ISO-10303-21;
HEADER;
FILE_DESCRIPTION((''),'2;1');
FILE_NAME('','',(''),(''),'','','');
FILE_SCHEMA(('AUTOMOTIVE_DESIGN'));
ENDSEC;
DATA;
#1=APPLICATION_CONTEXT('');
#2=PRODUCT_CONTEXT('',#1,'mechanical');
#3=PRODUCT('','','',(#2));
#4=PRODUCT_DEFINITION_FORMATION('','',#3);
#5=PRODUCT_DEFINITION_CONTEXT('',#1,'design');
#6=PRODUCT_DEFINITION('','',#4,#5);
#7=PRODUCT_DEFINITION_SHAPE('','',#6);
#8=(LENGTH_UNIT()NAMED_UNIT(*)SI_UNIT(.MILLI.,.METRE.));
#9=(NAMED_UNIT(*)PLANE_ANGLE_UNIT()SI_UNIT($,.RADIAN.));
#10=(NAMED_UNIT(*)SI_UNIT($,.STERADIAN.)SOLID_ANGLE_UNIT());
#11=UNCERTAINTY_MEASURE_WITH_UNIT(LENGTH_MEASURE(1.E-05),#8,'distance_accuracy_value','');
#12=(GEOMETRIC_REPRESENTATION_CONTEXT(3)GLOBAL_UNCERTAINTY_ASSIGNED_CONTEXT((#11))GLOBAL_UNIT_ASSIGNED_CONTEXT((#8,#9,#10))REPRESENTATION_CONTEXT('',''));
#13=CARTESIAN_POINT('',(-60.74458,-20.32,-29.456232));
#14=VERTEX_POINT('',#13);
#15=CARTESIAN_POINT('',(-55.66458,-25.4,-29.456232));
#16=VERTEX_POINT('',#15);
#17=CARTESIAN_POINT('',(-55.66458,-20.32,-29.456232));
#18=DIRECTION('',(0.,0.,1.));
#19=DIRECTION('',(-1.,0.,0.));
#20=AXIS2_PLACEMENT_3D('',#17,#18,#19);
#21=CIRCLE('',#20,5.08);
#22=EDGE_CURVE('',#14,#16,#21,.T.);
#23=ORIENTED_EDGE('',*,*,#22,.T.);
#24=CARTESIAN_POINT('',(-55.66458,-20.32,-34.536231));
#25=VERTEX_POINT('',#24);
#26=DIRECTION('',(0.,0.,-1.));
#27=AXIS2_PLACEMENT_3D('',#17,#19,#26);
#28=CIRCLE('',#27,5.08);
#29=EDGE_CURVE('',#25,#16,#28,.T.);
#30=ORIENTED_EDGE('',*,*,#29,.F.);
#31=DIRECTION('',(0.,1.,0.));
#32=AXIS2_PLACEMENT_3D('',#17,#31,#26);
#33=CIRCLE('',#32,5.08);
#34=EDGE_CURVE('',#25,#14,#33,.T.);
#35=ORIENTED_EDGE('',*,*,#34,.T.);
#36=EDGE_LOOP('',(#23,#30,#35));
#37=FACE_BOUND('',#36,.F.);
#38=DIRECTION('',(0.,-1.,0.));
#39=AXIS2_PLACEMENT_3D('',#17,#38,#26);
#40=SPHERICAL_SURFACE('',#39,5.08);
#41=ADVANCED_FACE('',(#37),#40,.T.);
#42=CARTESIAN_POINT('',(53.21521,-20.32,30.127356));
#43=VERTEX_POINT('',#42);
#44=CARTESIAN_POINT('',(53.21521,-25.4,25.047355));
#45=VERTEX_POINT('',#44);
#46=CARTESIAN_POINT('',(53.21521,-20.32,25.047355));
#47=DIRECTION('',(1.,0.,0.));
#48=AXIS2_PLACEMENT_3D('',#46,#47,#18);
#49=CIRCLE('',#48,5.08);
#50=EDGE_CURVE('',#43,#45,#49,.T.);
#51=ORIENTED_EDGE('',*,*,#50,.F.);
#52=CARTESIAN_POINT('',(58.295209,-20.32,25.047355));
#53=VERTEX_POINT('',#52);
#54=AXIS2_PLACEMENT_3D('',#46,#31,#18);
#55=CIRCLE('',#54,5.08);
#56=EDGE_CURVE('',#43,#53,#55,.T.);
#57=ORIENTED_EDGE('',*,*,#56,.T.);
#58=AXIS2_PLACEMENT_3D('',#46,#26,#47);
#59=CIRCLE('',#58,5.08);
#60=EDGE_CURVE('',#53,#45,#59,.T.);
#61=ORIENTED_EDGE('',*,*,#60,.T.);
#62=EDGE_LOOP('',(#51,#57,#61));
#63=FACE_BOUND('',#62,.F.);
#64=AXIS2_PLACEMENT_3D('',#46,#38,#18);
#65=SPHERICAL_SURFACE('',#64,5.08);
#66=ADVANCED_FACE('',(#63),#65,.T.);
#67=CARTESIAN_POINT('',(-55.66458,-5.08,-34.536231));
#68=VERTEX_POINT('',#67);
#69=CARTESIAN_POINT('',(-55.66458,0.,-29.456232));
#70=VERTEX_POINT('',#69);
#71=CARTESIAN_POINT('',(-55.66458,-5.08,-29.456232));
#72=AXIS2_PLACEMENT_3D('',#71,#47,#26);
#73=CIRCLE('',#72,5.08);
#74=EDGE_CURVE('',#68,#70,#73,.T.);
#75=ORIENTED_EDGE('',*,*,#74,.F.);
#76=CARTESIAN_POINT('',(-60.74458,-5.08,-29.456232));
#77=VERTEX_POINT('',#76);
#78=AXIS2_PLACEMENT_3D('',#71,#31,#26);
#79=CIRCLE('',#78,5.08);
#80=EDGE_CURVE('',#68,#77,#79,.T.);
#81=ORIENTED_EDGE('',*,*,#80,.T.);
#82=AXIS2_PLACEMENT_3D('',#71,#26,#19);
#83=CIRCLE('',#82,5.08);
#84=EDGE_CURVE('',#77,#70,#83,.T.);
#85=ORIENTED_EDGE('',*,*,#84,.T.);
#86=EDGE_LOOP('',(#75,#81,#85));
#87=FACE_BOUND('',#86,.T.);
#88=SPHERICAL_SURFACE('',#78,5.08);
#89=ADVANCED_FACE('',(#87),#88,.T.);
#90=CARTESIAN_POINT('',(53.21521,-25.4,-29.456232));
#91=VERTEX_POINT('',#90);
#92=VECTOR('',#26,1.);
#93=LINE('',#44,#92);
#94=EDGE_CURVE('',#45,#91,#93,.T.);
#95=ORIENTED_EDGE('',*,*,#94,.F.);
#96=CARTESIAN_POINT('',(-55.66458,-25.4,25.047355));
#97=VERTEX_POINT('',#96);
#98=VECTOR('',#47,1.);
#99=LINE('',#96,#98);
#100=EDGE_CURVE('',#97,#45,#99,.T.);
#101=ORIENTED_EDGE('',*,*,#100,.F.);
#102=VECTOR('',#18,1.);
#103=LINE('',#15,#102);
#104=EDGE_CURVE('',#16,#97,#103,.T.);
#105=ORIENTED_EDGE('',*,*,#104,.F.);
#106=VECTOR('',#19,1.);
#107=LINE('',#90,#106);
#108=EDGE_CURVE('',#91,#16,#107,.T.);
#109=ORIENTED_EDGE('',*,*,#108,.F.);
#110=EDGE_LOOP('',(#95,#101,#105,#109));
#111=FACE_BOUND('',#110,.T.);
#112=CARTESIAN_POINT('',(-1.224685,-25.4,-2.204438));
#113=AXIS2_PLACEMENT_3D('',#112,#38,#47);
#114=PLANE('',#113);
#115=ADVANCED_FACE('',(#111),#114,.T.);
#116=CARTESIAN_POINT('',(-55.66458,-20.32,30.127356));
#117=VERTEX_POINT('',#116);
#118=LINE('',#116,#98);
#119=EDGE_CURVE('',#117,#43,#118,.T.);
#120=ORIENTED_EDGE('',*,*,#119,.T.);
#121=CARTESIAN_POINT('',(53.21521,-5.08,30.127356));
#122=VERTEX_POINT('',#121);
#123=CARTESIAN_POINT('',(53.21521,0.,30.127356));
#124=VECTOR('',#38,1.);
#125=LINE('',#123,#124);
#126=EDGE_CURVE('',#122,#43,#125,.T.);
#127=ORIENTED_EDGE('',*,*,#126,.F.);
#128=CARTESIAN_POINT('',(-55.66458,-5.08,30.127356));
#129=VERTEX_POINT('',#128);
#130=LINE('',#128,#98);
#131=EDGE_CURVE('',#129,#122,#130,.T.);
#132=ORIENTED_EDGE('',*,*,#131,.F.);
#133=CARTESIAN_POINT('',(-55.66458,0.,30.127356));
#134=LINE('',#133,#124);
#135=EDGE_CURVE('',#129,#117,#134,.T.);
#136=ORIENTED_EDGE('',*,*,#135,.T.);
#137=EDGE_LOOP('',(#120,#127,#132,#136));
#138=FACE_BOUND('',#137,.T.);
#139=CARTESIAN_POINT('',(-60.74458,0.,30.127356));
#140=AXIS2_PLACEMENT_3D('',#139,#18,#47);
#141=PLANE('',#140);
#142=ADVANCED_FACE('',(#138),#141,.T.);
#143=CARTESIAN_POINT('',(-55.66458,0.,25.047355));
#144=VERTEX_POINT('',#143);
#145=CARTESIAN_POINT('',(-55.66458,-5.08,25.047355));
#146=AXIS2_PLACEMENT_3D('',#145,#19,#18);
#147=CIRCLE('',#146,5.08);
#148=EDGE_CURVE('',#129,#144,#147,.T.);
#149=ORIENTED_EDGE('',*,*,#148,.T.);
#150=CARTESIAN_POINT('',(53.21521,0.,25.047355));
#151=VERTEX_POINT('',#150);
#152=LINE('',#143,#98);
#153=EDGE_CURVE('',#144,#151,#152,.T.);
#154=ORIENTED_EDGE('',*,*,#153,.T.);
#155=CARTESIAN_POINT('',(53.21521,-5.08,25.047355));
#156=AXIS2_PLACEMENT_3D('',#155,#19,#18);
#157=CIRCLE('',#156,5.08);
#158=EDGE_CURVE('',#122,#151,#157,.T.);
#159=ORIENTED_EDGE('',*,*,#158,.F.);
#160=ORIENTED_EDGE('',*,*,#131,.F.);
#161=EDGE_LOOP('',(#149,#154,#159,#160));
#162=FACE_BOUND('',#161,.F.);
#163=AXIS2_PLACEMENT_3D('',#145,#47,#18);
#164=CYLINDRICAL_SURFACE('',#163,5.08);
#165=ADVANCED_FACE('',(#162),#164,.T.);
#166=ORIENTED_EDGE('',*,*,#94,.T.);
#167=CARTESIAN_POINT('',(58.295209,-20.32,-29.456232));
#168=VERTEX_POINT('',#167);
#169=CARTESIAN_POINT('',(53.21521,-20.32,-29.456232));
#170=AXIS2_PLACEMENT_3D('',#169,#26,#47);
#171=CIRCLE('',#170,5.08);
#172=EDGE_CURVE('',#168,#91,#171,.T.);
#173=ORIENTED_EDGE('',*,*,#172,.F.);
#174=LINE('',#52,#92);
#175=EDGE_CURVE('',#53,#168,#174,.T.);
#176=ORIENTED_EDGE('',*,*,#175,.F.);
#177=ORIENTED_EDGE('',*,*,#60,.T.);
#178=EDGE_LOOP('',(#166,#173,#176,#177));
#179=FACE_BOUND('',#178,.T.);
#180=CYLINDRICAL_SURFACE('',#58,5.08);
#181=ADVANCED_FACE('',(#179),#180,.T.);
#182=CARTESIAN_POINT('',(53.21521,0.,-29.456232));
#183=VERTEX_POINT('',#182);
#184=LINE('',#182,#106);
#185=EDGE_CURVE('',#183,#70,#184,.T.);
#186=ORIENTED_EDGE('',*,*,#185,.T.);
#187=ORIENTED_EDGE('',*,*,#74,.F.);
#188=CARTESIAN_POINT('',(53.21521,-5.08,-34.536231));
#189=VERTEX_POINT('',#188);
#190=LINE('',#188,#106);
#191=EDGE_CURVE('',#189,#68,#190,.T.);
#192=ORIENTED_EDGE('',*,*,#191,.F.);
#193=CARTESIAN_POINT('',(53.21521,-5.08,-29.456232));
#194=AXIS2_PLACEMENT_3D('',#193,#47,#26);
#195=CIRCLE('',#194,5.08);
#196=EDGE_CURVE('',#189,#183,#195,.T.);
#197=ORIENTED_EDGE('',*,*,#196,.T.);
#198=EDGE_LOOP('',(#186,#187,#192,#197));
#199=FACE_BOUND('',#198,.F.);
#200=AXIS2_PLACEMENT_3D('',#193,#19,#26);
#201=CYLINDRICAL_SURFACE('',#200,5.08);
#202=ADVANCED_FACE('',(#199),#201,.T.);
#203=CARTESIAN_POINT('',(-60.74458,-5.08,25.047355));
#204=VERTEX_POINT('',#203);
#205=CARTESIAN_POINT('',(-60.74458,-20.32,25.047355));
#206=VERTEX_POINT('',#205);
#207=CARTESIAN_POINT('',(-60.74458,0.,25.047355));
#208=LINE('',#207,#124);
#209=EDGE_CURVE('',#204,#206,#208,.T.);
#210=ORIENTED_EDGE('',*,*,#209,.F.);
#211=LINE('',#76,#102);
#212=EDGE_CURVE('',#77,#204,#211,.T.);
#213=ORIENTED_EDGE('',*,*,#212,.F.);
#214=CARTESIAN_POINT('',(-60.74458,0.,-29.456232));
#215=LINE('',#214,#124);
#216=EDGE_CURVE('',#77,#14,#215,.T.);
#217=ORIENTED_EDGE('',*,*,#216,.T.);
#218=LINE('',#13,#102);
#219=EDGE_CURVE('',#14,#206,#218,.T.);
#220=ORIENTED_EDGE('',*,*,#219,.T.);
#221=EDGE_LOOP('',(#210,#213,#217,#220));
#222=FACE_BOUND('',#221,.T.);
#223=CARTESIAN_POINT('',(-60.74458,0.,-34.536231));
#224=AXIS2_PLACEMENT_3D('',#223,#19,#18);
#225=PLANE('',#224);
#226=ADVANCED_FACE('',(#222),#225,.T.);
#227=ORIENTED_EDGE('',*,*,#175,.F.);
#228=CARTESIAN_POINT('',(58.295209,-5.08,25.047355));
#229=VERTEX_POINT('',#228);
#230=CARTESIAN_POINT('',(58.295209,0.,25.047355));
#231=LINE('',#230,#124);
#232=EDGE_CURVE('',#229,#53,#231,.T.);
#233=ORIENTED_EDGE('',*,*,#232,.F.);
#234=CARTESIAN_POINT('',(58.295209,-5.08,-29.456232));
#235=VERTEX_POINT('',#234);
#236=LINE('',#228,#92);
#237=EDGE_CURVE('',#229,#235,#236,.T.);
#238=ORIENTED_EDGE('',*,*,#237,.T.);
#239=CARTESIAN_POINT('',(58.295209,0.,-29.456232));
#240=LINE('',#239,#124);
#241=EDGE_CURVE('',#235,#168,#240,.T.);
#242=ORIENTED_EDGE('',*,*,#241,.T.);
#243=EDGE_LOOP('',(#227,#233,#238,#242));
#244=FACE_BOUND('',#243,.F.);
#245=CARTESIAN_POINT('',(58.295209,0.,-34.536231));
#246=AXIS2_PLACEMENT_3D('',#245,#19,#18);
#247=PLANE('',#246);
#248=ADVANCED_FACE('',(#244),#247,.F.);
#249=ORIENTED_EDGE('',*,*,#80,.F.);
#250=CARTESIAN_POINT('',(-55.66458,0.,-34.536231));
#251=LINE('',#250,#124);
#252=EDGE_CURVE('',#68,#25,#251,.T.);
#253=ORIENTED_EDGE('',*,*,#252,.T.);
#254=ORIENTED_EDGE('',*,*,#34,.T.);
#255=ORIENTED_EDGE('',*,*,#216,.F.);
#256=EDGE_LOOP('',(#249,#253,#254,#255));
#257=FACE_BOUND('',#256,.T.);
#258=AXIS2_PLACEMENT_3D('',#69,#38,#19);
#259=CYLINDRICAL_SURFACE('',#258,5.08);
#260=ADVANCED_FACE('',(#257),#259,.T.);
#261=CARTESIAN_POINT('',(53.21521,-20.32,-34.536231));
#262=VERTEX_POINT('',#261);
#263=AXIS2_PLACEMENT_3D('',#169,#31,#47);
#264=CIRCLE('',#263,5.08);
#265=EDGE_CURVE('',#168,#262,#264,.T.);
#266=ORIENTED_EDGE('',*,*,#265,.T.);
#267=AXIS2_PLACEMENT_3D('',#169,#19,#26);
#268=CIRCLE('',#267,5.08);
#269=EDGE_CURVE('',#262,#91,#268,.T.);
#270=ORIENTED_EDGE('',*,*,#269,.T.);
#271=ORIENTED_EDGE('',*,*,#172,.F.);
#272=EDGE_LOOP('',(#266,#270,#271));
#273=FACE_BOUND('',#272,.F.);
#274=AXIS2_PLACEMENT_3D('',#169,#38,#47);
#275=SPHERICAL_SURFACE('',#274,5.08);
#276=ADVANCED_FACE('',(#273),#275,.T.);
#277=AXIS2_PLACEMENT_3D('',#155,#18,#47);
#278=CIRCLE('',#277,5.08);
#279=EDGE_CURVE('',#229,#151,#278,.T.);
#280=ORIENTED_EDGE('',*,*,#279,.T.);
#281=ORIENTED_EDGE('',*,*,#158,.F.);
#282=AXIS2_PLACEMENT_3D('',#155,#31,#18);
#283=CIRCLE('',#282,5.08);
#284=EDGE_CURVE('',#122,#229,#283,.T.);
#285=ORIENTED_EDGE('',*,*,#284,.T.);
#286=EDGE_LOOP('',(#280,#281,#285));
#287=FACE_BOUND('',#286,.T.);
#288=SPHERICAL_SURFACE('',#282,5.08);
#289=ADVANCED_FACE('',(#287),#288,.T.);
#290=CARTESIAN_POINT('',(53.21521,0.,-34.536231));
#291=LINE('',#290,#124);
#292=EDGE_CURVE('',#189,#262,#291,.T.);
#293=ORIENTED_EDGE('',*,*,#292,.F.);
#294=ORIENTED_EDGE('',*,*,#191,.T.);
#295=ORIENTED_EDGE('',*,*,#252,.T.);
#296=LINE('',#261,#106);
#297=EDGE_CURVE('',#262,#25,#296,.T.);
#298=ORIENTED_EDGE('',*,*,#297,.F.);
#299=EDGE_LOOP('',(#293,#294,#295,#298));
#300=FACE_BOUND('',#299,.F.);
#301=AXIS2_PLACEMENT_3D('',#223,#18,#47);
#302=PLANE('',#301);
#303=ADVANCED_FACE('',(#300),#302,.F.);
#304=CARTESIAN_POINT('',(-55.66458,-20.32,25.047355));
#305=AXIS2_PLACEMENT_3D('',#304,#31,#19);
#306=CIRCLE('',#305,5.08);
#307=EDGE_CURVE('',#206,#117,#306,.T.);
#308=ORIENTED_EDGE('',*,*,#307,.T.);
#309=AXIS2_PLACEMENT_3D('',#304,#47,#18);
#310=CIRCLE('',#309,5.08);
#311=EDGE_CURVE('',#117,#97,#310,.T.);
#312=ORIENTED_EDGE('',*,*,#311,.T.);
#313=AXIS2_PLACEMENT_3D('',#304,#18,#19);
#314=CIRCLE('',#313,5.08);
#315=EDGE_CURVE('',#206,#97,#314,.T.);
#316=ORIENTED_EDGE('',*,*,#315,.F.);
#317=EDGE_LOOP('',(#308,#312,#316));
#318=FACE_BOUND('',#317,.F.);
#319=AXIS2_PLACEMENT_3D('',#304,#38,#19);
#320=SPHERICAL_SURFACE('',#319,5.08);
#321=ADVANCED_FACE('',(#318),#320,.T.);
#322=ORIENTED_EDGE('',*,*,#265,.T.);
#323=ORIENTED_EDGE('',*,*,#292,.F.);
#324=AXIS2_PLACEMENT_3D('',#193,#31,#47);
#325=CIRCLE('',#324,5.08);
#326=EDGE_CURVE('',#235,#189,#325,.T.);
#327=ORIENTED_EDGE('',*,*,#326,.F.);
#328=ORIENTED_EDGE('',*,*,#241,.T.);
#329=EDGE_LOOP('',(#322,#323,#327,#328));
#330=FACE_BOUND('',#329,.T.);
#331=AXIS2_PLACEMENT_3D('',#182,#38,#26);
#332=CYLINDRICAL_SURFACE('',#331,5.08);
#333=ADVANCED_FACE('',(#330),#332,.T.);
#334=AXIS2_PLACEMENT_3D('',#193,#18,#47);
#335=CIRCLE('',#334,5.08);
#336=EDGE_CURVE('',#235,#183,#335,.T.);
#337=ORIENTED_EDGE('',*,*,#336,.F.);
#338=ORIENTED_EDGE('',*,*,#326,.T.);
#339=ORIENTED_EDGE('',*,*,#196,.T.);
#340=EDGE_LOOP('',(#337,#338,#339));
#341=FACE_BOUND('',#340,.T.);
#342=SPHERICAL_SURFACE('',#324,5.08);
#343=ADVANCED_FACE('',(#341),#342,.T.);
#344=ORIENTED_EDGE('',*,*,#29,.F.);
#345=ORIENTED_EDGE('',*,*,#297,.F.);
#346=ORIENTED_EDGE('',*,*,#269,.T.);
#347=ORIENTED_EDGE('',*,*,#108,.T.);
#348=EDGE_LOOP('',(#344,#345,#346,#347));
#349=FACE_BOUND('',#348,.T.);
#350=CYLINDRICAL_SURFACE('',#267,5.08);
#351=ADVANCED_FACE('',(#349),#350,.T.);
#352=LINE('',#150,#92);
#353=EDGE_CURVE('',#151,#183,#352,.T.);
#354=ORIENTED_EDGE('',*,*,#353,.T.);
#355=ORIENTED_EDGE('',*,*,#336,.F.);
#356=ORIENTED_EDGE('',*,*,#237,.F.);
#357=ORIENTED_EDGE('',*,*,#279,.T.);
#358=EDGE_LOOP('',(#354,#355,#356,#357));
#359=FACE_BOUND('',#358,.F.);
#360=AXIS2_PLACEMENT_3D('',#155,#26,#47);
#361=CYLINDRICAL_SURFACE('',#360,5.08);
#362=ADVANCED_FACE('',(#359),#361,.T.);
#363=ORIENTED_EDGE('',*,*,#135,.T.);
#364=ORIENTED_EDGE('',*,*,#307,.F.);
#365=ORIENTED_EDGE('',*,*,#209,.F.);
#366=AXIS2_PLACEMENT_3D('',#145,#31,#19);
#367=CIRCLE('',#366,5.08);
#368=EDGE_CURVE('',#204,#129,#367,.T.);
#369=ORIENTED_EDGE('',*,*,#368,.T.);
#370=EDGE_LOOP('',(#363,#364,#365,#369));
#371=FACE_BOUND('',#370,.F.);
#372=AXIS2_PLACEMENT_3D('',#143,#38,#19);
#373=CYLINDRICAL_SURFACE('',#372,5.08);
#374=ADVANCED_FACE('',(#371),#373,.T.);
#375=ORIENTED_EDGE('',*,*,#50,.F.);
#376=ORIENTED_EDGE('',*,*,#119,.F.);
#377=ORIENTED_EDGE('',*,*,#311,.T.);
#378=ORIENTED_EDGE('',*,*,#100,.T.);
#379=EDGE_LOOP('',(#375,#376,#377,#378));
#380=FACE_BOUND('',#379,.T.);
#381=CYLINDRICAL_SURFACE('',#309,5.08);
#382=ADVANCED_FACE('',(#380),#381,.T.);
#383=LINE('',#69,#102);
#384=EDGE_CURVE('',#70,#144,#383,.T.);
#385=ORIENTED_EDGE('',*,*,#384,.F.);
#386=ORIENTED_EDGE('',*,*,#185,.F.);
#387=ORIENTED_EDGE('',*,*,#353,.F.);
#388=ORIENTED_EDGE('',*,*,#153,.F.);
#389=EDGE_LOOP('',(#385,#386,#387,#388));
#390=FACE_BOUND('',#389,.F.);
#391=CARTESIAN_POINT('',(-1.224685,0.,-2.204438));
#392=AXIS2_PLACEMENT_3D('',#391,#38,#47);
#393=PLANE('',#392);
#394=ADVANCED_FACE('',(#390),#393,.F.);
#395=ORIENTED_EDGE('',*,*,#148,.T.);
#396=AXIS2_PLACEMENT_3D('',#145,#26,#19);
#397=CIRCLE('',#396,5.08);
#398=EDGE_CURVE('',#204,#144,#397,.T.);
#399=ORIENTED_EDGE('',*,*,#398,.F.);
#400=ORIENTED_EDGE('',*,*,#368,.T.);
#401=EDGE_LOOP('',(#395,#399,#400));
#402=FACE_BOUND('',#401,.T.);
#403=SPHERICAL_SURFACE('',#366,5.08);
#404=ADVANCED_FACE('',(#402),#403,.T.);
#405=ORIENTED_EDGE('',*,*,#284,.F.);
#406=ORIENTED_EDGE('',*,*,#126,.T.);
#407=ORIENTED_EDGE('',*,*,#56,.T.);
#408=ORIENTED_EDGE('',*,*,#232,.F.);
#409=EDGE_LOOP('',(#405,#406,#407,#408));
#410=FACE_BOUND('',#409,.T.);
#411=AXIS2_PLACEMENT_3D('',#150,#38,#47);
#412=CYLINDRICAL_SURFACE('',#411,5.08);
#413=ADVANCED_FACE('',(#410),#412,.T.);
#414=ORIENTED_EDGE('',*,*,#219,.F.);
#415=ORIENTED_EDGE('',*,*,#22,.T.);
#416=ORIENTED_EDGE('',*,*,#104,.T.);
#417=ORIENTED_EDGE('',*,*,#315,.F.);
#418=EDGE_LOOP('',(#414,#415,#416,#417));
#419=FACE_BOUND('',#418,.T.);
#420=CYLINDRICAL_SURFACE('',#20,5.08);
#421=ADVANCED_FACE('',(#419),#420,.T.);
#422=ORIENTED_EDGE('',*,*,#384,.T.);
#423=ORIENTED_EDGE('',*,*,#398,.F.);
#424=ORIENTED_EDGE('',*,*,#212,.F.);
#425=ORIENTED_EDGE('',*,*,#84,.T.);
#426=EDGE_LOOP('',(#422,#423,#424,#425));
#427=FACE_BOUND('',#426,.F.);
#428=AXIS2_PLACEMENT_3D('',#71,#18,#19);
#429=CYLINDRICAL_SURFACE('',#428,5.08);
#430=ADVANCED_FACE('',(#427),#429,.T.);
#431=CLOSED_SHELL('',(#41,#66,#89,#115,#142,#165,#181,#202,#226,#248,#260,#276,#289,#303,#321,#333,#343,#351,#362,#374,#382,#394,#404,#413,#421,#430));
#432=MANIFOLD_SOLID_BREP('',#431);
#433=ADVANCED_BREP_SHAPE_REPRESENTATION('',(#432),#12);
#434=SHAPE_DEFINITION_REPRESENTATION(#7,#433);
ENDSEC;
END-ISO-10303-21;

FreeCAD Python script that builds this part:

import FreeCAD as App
import Part
import Sketcher

V = App.Vector
Q = App.Units.Quantity


def edges_at(feature, points):
    """Names of the edges that pass closest to the given points."""
    edges = feature.Shape.Edges
    near = lambda p: min(range(len(edges)), key=lambda i: edges[i].distToShape(Part.Vertex(*p))[0])
    return sorted({f"Edge{near(p) + 1}" for p in points})


def add_polygon(sketch, points):
    """Adds a closed chain of lines whose ends are joined by coincident constraints."""
    first, n = sketch.GeometryCount, len(points)
    for a, b in zip(points, points[1:] + points[:1]):
        sketch.addGeometry(Part.LineSegment(App.Vector(*a, 0), App.Vector(*b, 0)), False)
    for i in range(n):
        sketch.addConstraint(Sketcher.Constraint("Coincident", first + i, 2, first + (i + 1) % n, 1))

doc = App.newDocument("Part")
params = doc.addObject("Spreadsheet::Sheet", "Params")
for row, (alias, value) in enumerate([
    ("pad1_length", "1 in"),
    ("fillet_radius", "0.2 in"),
    ("fillet2_radius", "0.2 in"),
], start=1):
    params.set(f"A{row}", alias)
    params.set(f"B{row}", "=" + value)
    params.setAlias(f"B{row}", alias)

body = doc.addObject("PartDesign::Body", "Body")

sketch1 = body.newObject("Sketcher::SketchObject", "Sketch")
sketch1.AttachmentSupport = (doc.getObject("XZ_Plane"), [""])
sketch1.MapMode = "FlatFace"
add_polygon(sketch1, [(-61, 30), (-61, -35), (58, -35), (58, 30)])
sketch1.addConstraint(Sketcher.Constraint("Vertical", 0))
sketch1.addConstraint(Sketcher.Constraint("Horizontal", 1))
sketch1.addConstraint(Sketcher.Constraint("Vertical", 2))
sketch1.addConstraint(Sketcher.Constraint("Horizontal", 3))
sketch1.addConstraint(Sketcher.Constraint("DistanceX", 1, 1, 1, 2, Q("119.039789 mm")))
sketch1.addConstraint(Sketcher.Constraint("DistanceY", 0, 2, 0, 1, Q("64.663587 mm")))
sketch1.addConstraint(Sketcher.Constraint("DistanceX", 0, 2, -1, 1, Q("60.74458 mm")))
sketch1.addConstraint(Sketcher.Constraint("DistanceY", 0, 2, -1, 1, Q("34.536231 mm")))
pad1 = body.newObject("PartDesign::Pad", "Pad")
pad1.Profile = sketch1
pad1.setExpression("Length", "Params.pad1_length")
doc.recompute()

fillet = body.newObject("PartDesign::Fillet", "Fillet")
fillet.Base = (pad1, edges_at(pad1, [
    (58.295, -12.7, 30.127),
    (58.295, -12.7, -34.536),
    (-60.745, -12.7, 30.127),
    (-60.745, -12.7, -34.536),
]))
fillet.setExpression("Radius", "Params.fillet_radius")
doc.recompute()

fillet2 = body.newObject("PartDesign::Fillet", "Fillet001")
fillet2.Base = (fillet, edges_at(fillet, [(-60.745, -25.4, -2.204), (-60.745, 0, -2.204)]))
fillet2.setExpression("Radius", "Params.fillet2_radius")

doc.recompute()
